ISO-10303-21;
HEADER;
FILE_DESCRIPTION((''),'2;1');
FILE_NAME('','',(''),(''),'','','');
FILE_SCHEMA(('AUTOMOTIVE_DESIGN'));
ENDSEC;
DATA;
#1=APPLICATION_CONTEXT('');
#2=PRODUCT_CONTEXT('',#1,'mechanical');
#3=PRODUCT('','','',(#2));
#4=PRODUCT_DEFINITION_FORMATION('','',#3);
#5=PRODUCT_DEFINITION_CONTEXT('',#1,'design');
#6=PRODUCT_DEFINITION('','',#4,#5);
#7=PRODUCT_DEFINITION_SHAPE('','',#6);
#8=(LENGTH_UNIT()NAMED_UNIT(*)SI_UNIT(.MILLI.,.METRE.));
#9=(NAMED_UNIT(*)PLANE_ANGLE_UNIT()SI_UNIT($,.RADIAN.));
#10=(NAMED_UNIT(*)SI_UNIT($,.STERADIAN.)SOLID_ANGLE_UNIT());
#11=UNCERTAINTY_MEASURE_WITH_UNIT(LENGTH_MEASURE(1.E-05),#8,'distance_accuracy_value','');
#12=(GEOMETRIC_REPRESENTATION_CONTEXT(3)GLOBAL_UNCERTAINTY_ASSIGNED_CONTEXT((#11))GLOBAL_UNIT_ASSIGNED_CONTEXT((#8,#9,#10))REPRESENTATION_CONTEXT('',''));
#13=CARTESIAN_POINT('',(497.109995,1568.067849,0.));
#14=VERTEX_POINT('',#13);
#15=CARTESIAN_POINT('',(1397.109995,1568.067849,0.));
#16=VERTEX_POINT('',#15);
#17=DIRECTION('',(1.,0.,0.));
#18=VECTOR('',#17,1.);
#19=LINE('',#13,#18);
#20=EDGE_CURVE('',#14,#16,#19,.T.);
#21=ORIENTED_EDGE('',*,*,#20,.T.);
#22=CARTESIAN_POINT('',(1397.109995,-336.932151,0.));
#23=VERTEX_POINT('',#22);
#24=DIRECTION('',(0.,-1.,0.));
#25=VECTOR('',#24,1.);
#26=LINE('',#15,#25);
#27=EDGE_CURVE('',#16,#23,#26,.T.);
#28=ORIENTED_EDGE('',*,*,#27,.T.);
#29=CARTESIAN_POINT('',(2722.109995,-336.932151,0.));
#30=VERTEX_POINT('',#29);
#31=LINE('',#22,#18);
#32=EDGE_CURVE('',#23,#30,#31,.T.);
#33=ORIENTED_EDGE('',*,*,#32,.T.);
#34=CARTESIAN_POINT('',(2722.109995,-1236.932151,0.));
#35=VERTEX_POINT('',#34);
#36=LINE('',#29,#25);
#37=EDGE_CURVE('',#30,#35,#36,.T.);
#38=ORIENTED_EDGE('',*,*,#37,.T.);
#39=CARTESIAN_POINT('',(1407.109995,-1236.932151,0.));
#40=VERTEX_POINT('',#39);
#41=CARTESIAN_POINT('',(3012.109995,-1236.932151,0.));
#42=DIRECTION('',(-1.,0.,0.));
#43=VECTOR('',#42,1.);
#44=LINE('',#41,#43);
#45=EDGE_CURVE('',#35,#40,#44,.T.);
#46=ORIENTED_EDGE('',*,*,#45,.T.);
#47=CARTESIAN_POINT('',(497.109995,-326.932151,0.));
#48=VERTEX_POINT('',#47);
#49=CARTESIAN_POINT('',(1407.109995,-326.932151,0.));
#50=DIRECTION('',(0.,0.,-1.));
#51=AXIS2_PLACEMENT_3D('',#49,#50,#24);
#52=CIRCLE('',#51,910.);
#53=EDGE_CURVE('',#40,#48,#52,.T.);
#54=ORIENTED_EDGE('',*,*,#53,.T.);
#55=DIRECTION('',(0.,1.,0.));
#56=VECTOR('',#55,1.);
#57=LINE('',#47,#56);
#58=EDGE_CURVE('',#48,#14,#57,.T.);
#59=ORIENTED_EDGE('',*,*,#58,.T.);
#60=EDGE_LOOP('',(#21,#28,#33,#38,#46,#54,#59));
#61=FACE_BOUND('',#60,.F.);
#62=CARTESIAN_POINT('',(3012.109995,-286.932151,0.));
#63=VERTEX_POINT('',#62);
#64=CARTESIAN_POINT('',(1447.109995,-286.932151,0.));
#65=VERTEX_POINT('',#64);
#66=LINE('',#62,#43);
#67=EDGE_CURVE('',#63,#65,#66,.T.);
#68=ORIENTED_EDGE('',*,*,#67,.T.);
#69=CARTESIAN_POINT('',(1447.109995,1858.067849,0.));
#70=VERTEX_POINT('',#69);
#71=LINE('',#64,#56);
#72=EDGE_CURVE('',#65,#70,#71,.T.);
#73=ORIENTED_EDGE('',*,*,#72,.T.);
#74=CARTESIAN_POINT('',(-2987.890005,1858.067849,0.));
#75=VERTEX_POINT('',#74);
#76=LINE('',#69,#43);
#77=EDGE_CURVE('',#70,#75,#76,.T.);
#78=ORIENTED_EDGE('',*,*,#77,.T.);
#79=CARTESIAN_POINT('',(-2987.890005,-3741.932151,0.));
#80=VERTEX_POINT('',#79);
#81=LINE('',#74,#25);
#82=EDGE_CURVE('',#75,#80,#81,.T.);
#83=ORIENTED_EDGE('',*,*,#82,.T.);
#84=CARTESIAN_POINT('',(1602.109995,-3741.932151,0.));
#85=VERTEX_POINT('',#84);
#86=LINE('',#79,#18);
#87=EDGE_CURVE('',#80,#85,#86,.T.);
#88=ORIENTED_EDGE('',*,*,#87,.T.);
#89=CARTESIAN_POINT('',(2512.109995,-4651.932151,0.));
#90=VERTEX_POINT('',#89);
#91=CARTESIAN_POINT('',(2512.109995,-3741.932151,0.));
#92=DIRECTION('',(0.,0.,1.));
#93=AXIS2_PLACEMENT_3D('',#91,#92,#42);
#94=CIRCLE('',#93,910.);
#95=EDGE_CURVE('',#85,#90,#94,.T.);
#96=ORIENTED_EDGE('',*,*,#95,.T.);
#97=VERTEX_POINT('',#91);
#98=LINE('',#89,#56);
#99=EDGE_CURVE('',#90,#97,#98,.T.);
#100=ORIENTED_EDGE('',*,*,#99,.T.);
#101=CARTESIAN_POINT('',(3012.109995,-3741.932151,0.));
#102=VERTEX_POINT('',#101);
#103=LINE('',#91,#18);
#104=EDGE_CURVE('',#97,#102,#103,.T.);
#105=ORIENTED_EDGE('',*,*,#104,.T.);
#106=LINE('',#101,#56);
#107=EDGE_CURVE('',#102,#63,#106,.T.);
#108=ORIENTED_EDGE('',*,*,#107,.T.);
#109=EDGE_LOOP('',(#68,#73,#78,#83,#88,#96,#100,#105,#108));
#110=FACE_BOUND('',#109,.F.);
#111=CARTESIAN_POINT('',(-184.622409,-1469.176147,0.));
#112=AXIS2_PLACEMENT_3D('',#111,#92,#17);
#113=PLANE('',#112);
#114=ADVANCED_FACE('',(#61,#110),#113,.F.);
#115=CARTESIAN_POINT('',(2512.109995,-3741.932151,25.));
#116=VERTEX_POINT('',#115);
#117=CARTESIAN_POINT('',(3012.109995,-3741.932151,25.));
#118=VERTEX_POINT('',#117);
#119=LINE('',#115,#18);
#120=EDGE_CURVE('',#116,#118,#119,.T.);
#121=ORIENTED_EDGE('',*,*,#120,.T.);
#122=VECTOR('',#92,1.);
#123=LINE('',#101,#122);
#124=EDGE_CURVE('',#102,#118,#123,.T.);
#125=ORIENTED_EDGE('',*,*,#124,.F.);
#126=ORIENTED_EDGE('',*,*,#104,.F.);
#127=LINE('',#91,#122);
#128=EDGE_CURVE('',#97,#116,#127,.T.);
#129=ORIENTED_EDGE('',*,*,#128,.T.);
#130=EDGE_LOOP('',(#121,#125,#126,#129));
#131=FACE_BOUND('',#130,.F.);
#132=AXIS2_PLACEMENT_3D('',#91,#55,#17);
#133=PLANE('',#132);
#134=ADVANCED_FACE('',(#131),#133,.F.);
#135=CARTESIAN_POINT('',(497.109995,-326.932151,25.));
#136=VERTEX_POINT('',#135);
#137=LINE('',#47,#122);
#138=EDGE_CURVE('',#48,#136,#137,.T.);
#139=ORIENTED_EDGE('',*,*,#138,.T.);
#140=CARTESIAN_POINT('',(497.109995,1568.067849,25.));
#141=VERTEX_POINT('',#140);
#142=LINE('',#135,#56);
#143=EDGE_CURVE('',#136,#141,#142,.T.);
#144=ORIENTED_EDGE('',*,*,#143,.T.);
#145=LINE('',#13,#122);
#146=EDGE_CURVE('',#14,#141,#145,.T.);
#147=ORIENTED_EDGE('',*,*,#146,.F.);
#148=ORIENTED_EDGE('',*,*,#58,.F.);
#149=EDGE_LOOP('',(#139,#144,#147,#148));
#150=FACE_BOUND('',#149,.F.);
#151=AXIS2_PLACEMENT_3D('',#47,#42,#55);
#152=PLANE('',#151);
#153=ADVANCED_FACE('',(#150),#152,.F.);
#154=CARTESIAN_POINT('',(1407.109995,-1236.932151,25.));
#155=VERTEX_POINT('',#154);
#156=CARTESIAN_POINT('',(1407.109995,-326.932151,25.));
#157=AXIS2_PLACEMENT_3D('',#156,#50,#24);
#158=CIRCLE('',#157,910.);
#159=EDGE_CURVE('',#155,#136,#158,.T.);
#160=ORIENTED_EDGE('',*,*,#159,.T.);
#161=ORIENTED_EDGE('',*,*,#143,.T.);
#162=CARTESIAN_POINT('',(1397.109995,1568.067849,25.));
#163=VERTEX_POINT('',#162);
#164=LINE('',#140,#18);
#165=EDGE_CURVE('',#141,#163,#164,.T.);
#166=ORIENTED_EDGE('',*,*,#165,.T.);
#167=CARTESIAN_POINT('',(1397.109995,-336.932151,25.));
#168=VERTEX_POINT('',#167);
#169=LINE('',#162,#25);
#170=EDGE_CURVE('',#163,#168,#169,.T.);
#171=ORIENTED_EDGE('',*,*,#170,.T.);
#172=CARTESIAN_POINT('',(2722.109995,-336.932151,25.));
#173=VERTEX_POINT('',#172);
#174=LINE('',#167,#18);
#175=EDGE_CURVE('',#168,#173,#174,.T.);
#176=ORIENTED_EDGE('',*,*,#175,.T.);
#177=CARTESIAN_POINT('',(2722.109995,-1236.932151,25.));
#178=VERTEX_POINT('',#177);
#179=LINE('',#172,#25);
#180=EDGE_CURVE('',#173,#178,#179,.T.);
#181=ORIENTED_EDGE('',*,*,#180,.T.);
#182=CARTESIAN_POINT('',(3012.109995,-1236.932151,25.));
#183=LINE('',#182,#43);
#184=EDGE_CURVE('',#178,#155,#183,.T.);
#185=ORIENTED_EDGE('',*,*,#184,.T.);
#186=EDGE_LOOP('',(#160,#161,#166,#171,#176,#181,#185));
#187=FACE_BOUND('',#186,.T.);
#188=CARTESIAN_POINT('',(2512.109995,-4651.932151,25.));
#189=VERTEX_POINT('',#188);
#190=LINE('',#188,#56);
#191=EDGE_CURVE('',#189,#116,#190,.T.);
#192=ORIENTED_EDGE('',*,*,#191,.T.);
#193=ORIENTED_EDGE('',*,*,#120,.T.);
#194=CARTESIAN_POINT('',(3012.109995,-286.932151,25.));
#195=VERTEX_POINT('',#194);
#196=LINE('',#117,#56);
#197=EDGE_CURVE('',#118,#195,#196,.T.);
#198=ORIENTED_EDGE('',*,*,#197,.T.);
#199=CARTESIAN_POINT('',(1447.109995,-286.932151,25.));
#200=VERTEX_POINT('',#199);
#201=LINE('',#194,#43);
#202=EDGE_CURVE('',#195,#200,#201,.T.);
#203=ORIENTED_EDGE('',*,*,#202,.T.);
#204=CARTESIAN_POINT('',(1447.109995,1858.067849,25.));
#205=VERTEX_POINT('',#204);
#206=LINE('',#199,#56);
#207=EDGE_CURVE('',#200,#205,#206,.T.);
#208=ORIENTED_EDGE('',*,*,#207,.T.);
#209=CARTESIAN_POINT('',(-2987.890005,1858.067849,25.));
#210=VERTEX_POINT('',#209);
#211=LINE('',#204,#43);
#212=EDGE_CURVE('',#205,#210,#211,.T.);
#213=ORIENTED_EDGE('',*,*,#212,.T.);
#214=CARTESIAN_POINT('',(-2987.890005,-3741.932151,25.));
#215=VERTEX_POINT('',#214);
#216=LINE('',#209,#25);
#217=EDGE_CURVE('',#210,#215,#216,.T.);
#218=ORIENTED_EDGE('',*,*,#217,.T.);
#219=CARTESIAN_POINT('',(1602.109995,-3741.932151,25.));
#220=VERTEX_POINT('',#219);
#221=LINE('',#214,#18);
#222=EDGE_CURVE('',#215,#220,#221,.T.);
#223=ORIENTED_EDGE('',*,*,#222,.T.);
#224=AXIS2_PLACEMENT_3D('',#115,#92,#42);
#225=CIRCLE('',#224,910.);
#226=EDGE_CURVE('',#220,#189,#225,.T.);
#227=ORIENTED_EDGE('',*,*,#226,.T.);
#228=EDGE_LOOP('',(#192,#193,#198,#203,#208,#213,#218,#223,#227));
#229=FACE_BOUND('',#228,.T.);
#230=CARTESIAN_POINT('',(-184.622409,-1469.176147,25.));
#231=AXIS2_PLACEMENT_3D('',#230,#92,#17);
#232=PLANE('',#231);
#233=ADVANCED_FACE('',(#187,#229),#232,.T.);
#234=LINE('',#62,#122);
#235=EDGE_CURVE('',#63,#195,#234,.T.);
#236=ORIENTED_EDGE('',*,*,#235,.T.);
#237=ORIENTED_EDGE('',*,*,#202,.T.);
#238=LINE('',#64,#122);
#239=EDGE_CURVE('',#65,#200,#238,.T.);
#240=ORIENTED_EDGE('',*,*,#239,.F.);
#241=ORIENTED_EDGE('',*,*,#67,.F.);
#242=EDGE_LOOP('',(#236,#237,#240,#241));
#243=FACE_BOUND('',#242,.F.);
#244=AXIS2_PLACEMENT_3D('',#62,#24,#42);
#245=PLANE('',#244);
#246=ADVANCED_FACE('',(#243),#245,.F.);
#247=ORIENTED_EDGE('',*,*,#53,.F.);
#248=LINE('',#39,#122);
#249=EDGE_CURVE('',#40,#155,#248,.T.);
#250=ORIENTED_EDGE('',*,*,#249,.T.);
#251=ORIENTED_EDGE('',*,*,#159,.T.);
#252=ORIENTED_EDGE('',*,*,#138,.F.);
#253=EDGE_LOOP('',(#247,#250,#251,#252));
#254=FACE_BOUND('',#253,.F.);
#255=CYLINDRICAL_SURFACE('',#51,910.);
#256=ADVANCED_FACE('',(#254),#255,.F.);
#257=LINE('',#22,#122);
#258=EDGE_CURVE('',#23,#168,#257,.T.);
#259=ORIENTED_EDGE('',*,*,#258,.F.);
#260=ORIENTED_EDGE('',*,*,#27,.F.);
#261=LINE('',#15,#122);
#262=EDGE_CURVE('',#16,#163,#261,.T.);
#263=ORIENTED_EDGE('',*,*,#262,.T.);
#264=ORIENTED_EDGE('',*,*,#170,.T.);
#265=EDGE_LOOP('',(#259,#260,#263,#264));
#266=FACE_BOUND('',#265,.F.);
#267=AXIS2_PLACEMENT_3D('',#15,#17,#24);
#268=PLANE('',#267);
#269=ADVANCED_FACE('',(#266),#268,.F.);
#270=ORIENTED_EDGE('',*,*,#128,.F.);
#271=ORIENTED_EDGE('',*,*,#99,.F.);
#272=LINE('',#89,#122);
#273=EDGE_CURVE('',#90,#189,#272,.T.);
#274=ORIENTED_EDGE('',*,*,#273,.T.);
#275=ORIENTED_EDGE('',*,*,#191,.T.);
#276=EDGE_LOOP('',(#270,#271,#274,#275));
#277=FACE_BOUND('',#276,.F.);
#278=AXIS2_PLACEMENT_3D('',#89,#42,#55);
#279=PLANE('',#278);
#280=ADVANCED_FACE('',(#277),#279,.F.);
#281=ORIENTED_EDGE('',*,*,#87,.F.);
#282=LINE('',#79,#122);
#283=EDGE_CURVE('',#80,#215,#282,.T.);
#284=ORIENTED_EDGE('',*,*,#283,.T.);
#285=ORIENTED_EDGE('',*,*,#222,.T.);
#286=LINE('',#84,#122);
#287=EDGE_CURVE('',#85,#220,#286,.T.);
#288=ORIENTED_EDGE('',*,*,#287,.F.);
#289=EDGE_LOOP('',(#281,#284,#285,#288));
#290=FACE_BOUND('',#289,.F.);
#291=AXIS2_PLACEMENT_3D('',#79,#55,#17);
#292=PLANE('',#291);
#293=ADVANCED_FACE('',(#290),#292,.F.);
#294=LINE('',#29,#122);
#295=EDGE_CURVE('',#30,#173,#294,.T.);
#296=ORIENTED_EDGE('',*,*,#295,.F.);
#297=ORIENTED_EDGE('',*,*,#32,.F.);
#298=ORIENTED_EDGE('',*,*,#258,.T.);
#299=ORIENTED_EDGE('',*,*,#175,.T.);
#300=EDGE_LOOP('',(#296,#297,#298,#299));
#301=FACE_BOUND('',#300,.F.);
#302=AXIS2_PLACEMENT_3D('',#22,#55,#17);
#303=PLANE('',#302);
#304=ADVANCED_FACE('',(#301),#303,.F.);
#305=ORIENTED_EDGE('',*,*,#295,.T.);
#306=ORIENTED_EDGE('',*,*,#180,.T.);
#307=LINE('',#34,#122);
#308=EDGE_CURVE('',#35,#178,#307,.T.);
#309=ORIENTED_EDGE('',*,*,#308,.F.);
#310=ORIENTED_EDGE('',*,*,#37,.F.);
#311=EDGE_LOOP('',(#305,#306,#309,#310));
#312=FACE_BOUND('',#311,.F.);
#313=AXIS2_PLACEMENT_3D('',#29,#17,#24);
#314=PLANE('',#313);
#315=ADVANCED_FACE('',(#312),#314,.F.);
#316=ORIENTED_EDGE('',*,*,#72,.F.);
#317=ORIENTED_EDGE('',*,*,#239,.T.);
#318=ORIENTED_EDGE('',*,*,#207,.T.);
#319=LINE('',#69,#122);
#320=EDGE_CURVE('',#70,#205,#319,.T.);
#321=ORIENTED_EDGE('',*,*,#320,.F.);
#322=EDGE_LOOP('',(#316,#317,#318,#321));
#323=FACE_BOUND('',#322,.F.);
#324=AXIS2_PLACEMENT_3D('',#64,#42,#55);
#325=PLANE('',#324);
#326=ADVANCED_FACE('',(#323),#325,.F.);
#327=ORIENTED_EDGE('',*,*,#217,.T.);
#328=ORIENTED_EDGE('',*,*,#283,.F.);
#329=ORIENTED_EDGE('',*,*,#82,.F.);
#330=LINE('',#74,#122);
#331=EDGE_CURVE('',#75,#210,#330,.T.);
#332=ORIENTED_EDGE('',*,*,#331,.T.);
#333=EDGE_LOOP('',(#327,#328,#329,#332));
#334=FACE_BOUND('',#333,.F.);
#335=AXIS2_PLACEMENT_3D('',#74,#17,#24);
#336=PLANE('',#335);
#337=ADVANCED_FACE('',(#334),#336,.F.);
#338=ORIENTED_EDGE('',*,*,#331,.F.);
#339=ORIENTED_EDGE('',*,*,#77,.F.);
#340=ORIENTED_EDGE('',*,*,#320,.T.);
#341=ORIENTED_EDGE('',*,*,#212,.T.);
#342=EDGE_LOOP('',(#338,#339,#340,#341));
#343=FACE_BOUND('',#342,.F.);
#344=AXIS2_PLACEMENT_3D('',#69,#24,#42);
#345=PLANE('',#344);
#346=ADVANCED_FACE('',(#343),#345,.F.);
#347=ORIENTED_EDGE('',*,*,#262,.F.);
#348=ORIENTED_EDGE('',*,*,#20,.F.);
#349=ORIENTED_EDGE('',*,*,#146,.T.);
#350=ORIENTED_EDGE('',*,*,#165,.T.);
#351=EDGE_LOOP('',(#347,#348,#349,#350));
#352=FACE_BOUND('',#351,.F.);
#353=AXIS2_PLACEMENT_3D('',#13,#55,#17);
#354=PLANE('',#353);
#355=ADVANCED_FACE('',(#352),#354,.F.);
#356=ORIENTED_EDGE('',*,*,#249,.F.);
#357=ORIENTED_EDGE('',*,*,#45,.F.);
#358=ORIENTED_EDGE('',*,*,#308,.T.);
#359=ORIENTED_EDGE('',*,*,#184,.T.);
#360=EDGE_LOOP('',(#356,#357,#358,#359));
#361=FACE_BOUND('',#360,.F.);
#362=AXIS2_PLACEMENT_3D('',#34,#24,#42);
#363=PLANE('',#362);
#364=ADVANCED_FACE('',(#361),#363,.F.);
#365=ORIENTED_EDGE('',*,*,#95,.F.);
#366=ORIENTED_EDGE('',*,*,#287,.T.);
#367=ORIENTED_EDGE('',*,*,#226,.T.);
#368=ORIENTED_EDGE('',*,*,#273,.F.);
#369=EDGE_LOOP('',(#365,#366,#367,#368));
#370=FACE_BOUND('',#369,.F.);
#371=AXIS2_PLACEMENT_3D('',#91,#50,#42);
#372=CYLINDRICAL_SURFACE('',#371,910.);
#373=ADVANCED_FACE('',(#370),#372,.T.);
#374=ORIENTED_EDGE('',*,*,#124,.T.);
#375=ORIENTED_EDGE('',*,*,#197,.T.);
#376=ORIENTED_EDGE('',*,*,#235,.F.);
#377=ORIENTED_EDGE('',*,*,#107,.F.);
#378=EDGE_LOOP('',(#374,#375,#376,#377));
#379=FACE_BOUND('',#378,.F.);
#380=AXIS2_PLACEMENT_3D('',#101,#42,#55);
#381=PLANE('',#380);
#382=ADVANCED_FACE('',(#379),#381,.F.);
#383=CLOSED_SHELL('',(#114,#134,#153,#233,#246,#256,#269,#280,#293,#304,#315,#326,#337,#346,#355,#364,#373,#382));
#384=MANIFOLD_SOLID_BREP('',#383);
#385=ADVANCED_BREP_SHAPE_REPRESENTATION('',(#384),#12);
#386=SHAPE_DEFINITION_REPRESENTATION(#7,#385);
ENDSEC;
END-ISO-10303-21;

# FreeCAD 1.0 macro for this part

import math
import FreeCAD as App
import Part
import Sketcher

V = App.Vector

doc = App.newDocument("Part")
body = doc.addObject("PartDesign::Body", "Body")

sketch1 = body.newObject("Sketcher::SketchObject", "Sketch")
sketch1.AttachmentSupport = (doc.getObject("XY_Plane"), [""])
sketch1.MapMode = "FlatFace"
sketch1.addGeometry([
    Part.LineSegment(V(-2988, 1858, 0), V(-2988, -3742, 0)),
    Part.LineSegment(V(-2988, -3742, 0), V(1602, -3742, 0)),
    Part.ArcOfCircle(Part.Circle(V(2512, -3742, 0), V(0, 0, 1), 910), math.radians(180), math.radians(270)),
    Part.LineSegment(V(2512, -4652, 0), V(2512, -3742, 0)),
    Part.LineSegment(V(2512, -3742, 0), V(3012, -3742, 0)),
    Part.LineSegment(V(3012, -3742, 0), V(3012, -287, 0)),
    Part.LineSegment(V(3012, -287, 0), V(1447, -287, 0)),
    Part.LineSegment(V(1447, -287, 0), V(1447, 1858, 0)),
    Part.LineSegment(V(1447, 1858, 0), V(-2988, 1858, 0)),
    Part.LineSegment(V(2722, -1237, 0), V(1407, -1237, 0)),
    Part.ArcOfCircle(Part.Circle(V(1407, -327, 0), V(0, 0, 1), 910), math.radians(180), math.radians(270)),
    Part.LineSegment(V(497, -327, 0), V(497, 1568, 0)),
    Part.LineSegment(V(497, 1568, 0), V(1397, 1568, 0)),
    Part.LineSegment(V(1397, 1568, 0), V(1397, -337, 0)),
    Part.LineSegment(V(1397, -337, 0), V(2722, -337, 0)),
    Part.LineSegment(V(2722, -337, 0), V(2722, -1237, 0)),
], False)
sketch1.addConstraint([
    Sketcher.Constraint("Coincident", 0, 2, 1, 1),
    Sketcher.Constraint("Coincident", 1, 2, 2, 1),
    Sketcher.Constraint("Coincident", 2, 2, 3, 1),
    Sketcher.Constraint("Coincident", 3, 2, 4, 1),
    Sketcher.Constraint("Coincident", 4, 2, 5, 1),
    Sketcher.Constraint("Coincident", 5, 2, 6, 1),
    Sketcher.Constraint("Coincident", 6, 2, 7, 1),
    Sketcher.Constraint("Coincident", 7, 2, 8, 1),
    Sketcher.Constraint("Coincident", 8, 2, 0, 1),
    Sketcher.Constraint("Coincident", 9, 2, 10, 2),
    Sketcher.Constraint("Coincident", 10, 1, 11, 1),
    Sketcher.Constraint("Coincident", 11, 2, 12, 1),
    Sketcher.Constraint("Coincident", 12, 2, 13, 1),
    Sketcher.Constraint("Coincident", 13, 2, 14, 1),
    Sketcher.Constraint("Coincident", 14, 2, 15, 1),
    Sketcher.Constraint("Coincident", 15, 2, 9, 1),
    Sketcher.Constraint("Vertical", 0),
    Sketcher.Constraint("Horizontal", 1),
    Sketcher.Constraint("Vertical", 3),
    Sketcher.Constraint("Horizontal", 4),
    Sketcher.Constraint("Vertical", 5),
    Sketcher.Constraint("Horizontal", 6),
    Sketcher.Constraint("Vertical", 7),
    Sketcher.Constraint("Horizontal", 8),
    Sketcher.Constraint("Horizontal", 9),
    Sketcher.Constraint("Vertical", 11),
    Sketcher.Constraint("Horizontal", 12),
    Sketcher.Constraint("Vertical", 13),
    Sketcher.Constraint("Horizontal", 14),
    Sketcher.Constraint("Vertical", 15),
    Sketcher.Constraint("Coincident", 3, 2, 2, 3),
    Sketcher.Constraint("Equal", 2, 10),
    Sketcher.Constraint("Horizontal", 2, 3, 0, 2),
    Sketcher.Constraint("Vertical", 10, 3, 9, 2),
    Sketcher.Constraint("Equal", 12, 15),
    Sketcher.Constraint("Radius", 2, 910.0),
    Sketcher.Constraint("DistanceX", 1, 1, 1, 2, 4590.0),
    Sketcher.Constraint("DistanceX", 4, 1, 4, 2, 500.0),
    Sketcher.Constraint("DistanceX", 6, 2, 6, 1, 1565.0),
    Sketcher.Constraint("DistanceX", 9, 2, 9, 1, 1315.0),
    Sketcher.Constraint("DistanceX", 12, 1, 12, 2, 900.0),
    Sketcher.Constraint("DistanceY", 0, 2, 0, 1, 5600.0),
    Sketcher.Constraint("DistanceY", 5, 1, 5, 2, 3455.0),
    Sketcher.Constraint("DistanceY", 11, 1, 11, 2, 1895.0),
    Sketcher.Constraint("DistanceY", 13, 2, 13, 1, 1905.0),
    Sketcher.Constraint("DistanceX", 10, 3, 2, 3, 1105.0),
    Sketcher.Constraint("DistanceY", 2, 3, 10, 3, 3415.0),
    Sketcher.Constraint("DistanceY", 2, 3, -1, 1, 3741.932151),
    Sketcher.Constraint("DistanceX", -1, 1, 2, 3, 2512.109995),
])
pad1 = body.newObject("PartDesign::Pad", "Pad")
pad1.Profile = sketch1
pad1.Length = 25

doc.recompute()
